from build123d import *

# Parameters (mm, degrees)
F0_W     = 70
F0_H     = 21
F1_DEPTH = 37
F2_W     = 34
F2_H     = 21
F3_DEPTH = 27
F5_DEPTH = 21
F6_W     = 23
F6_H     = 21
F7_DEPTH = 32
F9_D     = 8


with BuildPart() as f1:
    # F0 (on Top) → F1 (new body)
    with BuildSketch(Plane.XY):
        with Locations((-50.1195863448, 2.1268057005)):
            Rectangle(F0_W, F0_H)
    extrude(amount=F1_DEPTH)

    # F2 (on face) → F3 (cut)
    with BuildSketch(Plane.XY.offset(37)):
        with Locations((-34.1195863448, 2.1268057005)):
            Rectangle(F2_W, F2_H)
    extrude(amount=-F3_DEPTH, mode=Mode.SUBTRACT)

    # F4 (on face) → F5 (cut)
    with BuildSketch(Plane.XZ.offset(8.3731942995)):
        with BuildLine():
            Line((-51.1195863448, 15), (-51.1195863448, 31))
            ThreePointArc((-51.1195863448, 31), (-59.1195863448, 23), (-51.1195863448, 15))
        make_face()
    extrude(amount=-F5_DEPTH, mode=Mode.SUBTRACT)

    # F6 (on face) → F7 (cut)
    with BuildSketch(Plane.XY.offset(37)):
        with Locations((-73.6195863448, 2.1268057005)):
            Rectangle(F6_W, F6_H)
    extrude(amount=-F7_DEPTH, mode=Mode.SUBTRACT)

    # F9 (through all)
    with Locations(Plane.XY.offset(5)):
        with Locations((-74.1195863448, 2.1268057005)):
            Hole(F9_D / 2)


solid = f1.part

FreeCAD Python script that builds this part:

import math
import FreeCAD as App
import Part
import Sketcher

V = App.Vector

doc = App.newDocument("Part")
body = doc.addObject("PartDesign::Body", "Body")

# Sketch on XY plane
sketch1 = doc.addObject("Sketcher::SketchObject", "Sketch")
body.addObject(sketch1)
sketch1.AttachmentSupport = (doc.XY_Plane, [""])
sketch1.MapMode = "FlatFace"
sketch1.addGeometry(Part.LineSegment(V(-85.119586, 12.626806, 0), V(-85.119586, -8.373194, 0)), False)
sketch1.addGeometry(Part.LineSegment(V(-85.119586, -8.373194, 0), V(-15.119586, -8.373194, 0)), False)
sketch1.addGeometry(Part.LineSegment(V(-15.119586, -8.373194, 0), V(-15.119586, 12.626806, 0)), False)
sketch1.addGeometry(Part.LineSegment(V(-15.119586, 12.626806, 0), V(-85.119586, 12.626806, 0)), False)
sketch1.addConstraint(Sketcher.Constraint("Coincident", 0, 2, 1, 1))
sketch1.addConstraint(Sketcher.Constraint("Coincident", 1, 2, 2, 1))
sketch1.addConstraint(Sketcher.Constraint("Coincident", 2, 2, 3, 1))
sketch1.addConstraint(Sketcher.Constraint("Coincident", 3, 2, 0, 1))
sketch1.addConstraint(Sketcher.Constraint("Vertical", 0))
sketch1.addConstraint(Sketcher.Constraint("Horizontal", 1))
sketch1.addConstraint(Sketcher.Constraint("Vertical", 2))
sketch1.addConstraint(Sketcher.Constraint("Horizontal", 3))
sketch1.addConstraint(Sketcher.Constraint("DistanceX", 1, 1, 1, 2, 70.0))
sketch1.addConstraint(Sketcher.Constraint("DistanceY", 0, 2, 0, 1, 21.0))
sketch1.addConstraint(Sketcher.Constraint("DistanceX", 0, 2, -1, 1, 85.119586))
sketch1.addConstraint(Sketcher.Constraint("DistanceY", 0, 2, -1, 1, 8.373194))
pad1 = doc.addObject("PartDesign::Pad", "Pad")
body.addObject(pad1)
pad1.Profile = sketch1
pad1.Length = 37

# Sketch on XY plane
sketch2 = doc.addObject("Sketcher::SketchObject", "Sketch001")
body.addObject(sketch2)
sketch2.AttachmentSupport = (doc.XY_Plane, [""])
sketch2.MapMode = "FlatFace"
sketch2.AttachmentOffset = App.Placement(V(0, 0, 37), App.Rotation())
sketch2.addGeometry(Part.LineSegment(V(-51.119586, 12.626806, 0), V(-51.119586, -8.373194, 0)), False)
sketch2.addGeometry(Part.LineSegment(V(-51.119586, -8.373194, 0), V(-17.119586, -8.373194, 0)), False)
sketch2.addGeometry(Part.LineSegment(V(-17.119586, -8.373194, 0), V(-17.119586, 12.626806, 0)), False)
sketch2.addGeometry(Part.LineSegment(V(-17.119586, 12.626806, 0), V(-51.119586, 12.626806, 0)), False)
sketch2.addConstraint(Sketcher.Constraint("Coincident", 0, 2, 1, 1))
sketch2.addConstraint(Sketcher.Constraint("Coincident", 1, 2, 2, 1))
sketch2.addConstraint(Sketcher.Constraint("Coincident", 2, 2, 3, 1))
sketch2.addConstraint(Sketcher.Constraint("Coincident", 3, 2, 0, 1))
sketch2.addConstraint(Sketcher.Constraint("Vertical", 0))
sketch2.addConstraint(Sketcher.Constraint("Horizontal", 1))
sketch2.addConstraint(Sketcher.Constraint("Vertical", 2))
sketch2.addConstraint(Sketcher.Constraint("Horizontal", 3))
sketch2.addConstraint(Sketcher.Constraint("DistanceX", 1, 1, 1, 2, 34.0))
sketch2.addConstraint(Sketcher.Constraint("DistanceY", 0, 2, 0, 1, 21.0))
sketch2.addConstraint(Sketcher.Constraint("DistanceX", 0, 2, -1, 1, 51.119586))
sketch2.addConstraint(Sketcher.Constraint("DistanceY", 0, 2, -1, 1, 8.373194))
pocket1 = doc.addObject("PartDesign::Pocket", "Pocket")
body.addObject(pocket1)
pocket1.Profile = sketch2
pocket1.Length = 27

# Sketch on XZ plane
sketch3 = doc.addObject("Sketcher::SketchObject", "Sketch002")
body.addObject(sketch3)
sketch3.AttachmentSupport = (doc.XZ_Plane, [""])
sketch3.MapMode = "FlatFace"
sketch3.AttachmentOffset = App.Placement(V(0, 0, 8.373194), App.Rotation())
sketch3.addGeometry(Part.LineSegment(V(-51.119586, 15, 0), V(-51.119586, 31, 0)), False)
sketch3.addGeometry(Part.ArcOfCircle(Part.Circle(V(-51.119586, 23, 0), V(0, 0, 1), 8), math.radians(90), math.radians(270)), False)
sketch3.addConstraint(Sketcher.Constraint("Coincident", 0, 1, 1, 2))
sketch3.addConstraint(Sketcher.Constraint("Coincident", 1, 1, 0, 2))
sketch3.addConstraint(Sketcher.Constraint("Vertical", 0))
sketch3.addConstraint(Sketcher.Constraint("Vertical", 1, 3, 0, 1))
sketch3.addConstraint(Sketcher.Constraint("Radius", 1, 8.0))
sketch3.addConstraint(Sketcher.Constraint("DistanceY", -1, 1, 1, 3, 23.0))
sketch3.addConstraint(Sketcher.Constraint("DistanceX", 1, 3, -1, 1, 51.119586))
pocket2 = doc.addObject("PartDesign::Pocket", "Pocket001")
body.addObject(pocket2)
pocket2.Profile = sketch3
pocket2.Length = 21

# Sketch on XY plane
sketch4 = doc.addObject("Sketcher::SketchObject", "Sketch003")
body.addObject(sketch4)
sketch4.AttachmentSupport = (doc.XY_Plane, [""])
sketch4.MapMode = "FlatFace"
sketch4.AttachmentOffset = App.Placement(V(0, 0, 37), App.Rotation())
sketch4.addGeometry(Part.LineSegment(V(-85.119586, 12.626806, 0), V(-85.119586, -8.373194, 0)), False)
sketch4.addGeometry(Part.LineSegment(V(-85.119586, -8.373194, 0), V(-62.119586, -8.373194, 0)), False)
sketch4.addGeometry(Part.LineSegment(V(-62.119586, -8.373194, 0), V(-62.119586, 12.626806, 0)), False)
sketch4.addGeometry(Part.LineSegment(V(-62.119586, 12.626806, 0), V(-85.119586, 12.626806, 0)), False)
sketch4.addConstraint(Sketcher.Constraint("Coincident", 0, 2, 1, 1))
sketch4.addConstraint(Sketcher.Constraint("Coincident", 1, 2, 2, 1))
sketch4.addConstraint(Sketcher.Constraint("Coincident", 2, 2, 3, 1))
sketch4.addConstraint(Sketcher.Constraint("Coincident", 3, 2, 0, 1))
sketch4.addConstraint(Sketcher.Constraint("Vertical", 0))
sketch4.addConstraint(Sketcher.Constraint("Horizontal", 1))
sketch4.addConstraint(Sketcher.Constraint("Vertical", 2))
sketch4.addConstraint(Sketcher.Constraint("Horizontal", 3))
sketch4.addConstraint(Sketcher.Constraint("DistanceX", 1, 1, 1, 2, 23.0))
sketch4.addConstraint(Sketcher.Constraint("DistanceY", 0, 2, 0, 1, 21.0))
sketch4.addConstraint(Sketcher.Constraint("DistanceX", 0, 2, -1, 1, 85.119586))
sketch4.addConstraint(Sketcher.Constraint("DistanceY", 0, 2, -1, 1, 8.373194))
pocket3 = doc.addObject("PartDesign::Pocket", "Pocket002")
body.addObject(pocket3)
pocket3.Profile = sketch4
pocket3.Length = 32

# Sketch on XY plane
sketch5 = doc.addObject("Sketcher::SketchObject", "Sketch004")
body.addObject(sketch5)
sketch5.AttachmentSupport = (doc.XY_Plane, [""])
sketch5.MapMode = "FlatFace"
sketch5.AttachmentOffset = App.Placement(V(0, 0, 5), App.Rotation())
sketch5.addGeometry(Part.Circle(V(-74.119586, 2.126806, 0), V(0, 0, 1), 4), False)
sketch5.addConstraint(Sketcher.Constraint("Diameter", 0, 8.0))
sketch5.addConstraint(Sketcher.Constraint("DistanceX", 0, 3, -1, 1, 74.119586))
sketch5.addConstraint(Sketcher.Constraint("DistanceY", -1, 1, 0, 3, 2.126806))
doc.recompute()
hole = doc.addObject("PartDesign::Hole", "Hole")
body.addObject(hole)
hole.Profile = sketch5
hole.ThreadType = "None"
hole.Diameter = 8
hole.DepthType = "ThroughAll"

doc.recompute()
